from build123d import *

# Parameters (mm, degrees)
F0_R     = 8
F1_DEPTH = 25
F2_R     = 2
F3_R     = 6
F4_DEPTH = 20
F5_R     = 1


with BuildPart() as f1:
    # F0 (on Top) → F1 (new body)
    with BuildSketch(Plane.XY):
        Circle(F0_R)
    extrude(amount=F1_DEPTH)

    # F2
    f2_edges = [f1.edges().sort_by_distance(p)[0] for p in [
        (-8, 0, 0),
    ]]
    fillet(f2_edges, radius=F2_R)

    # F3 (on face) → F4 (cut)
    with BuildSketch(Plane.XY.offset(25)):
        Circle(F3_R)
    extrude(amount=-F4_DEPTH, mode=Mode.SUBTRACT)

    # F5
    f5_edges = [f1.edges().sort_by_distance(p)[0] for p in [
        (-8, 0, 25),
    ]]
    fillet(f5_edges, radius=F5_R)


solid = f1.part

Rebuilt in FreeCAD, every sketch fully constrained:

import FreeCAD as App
import Part
import Sketcher


def edges_at(feature, points):
    """Names of the edges that pass closest to the given points."""
    edges = feature.Shape.Edges
    near = lambda p: min(range(len(edges)), key=lambda i: edges[i].distToShape(Part.Vertex(*p))[0])
    return sorted({f"Edge{near(p) + 1}" for p in points})

doc = App.newDocument("Part")
params = doc.addObject("Spreadsheet::Sheet", "Params")
for row, (alias, value) in enumerate([
    ("sketch1_diameter", "16 mm"),
    ("pad1_length", "25 mm"),
    ("fillet_radius", "2 mm"),
    ("sketch2_diameter", "12 mm"),
    ("pocket1_length", "20 mm"),
    ("fillet2_radius", "1 mm"),
], start=1):
    params.set(f"A{row}", alias)
    params.set(f"B{row}", "=" + value)
    params.setAlias(f"B{row}", alias)

body = doc.addObject("PartDesign::Body", "Body")

# Sketch on XY plane
sketch1 = body.newObject("Sketcher::SketchObject", "Sketch")
sketch1.AttachmentSupport = (doc.getObject("XY_Plane"), [""])
sketch1.MapMode = "FlatFace"
sketch1.addGeometry(Part.Circle(App.Vector(0, 0, 0), App.Vector(0, 0, 1), 8), False)
sketch1.addConstraint([
    Sketcher.Constraint("Coincident", 0, 3, -1, 1),
    Sketcher.Constraint("Diameter", 0, 16.0),
])
sketch1.setExpression("Constraints[1]", "Params.sketch1_diameter")
pad1 = body.newObject("PartDesign::Pad", "Pad")
pad1.Profile = sketch1
pad1.setExpression("Length", "Params.pad1_length")
doc.recompute()

fillet = body.newObject("PartDesign::Fillet", "Fillet")
fillet.Base = (pad1, edges_at(pad1, [(-8, 0, 0)]))
fillet.setExpression("Radius", "Params.fillet_radius")

# Sketch on XY plane
sketch2 = body.newObject("Sketcher::SketchObject", "Sketch001")
sketch2.AttachmentSupport = (doc.getObject("XY_Plane"), [""])
sketch2.MapMode = "FlatFace"
sketch2.AttachmentOffset = App.Placement(App.Vector(0, 0, 25), App.Rotation())
sketch2.addGeometry(Part.Circle(App.Vector(0, 0, 0), App.Vector(0, 0, 1), 6), False)
sketch2.addConstraint([
    Sketcher.Constraint("Coincident", 0, 3, -1, 1),
    Sketcher.Constraint("Diameter", 0, 12.0),
])
sketch2.setExpression("Constraints[1]", "Params.sketch2_diameter")
pocket1 = body.newObject("PartDesign::Pocket", "Pocket")
pocket1.Profile = sketch2
pocket1.setExpression("Length", "Params.pocket1_length")
doc.recompute()

fillet2 = body.newObject("PartDesign::Fillet", "Fillet001")
fillet2.Base = (pocket1, edges_at(pocket1, [(-8, 0, 25)]))
fillet2.setExpression("Radius", "Params.fillet2_radius")

doc.recompute()
